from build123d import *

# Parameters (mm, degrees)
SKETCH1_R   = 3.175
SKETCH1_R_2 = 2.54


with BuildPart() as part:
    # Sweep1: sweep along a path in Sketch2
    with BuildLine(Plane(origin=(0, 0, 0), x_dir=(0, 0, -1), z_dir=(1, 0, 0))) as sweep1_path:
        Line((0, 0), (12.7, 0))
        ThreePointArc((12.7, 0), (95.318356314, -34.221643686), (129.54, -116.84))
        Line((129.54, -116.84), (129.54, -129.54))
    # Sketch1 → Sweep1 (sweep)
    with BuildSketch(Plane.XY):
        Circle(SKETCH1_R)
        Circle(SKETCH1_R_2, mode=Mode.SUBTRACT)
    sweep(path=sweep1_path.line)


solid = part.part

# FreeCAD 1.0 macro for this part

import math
import FreeCAD as App
import Part
import Sketcher
Q = App.Units.Quantity

doc = App.newDocument("Part")
body = doc.addObject("PartDesign::Body", "Body")

sketch1 = body.newObject("Sketcher::SketchObject", "Sketch")
sketch1.AttachmentSupport = (doc.getObject("XY_Plane"), [""])
sketch1.MapMode = "FlatFace"
sketch1.addGeometry(Part.Circle(App.Vector(0, 0, 0), App.Vector(0, 0, 1), 3.2), False)
sketch1.addGeometry(Part.Circle(App.Vector(0, 0, 0), App.Vector(0, 0, 1), 2.5), False)
sketch1.addConstraint(Sketcher.Constraint("Coincident", 0, 3, -1, 1))
sketch1.addConstraint(Sketcher.Constraint("Coincident", 1, 3, -1, 1))
sketch1.addConstraint(Sketcher.Constraint("Diameter", 1, Q("0.2 in")))
sketch1.addConstraint(Sketcher.Constraint("Diameter", 0, Q("0.25 in")))

sketch2 = body.newObject("Sketcher::SketchObject", "Sketch001")
sketch2.AttachmentSupport = (doc.getObject("YZ_Plane"), [""])
sketch2.MapMode = "FlatFace"
sketch2.addGeometry(Part.LineSegment(App.Vector(0, 0, 0), App.Vector(0, -13, 0)), False)
sketch2.addGeometry(Part.ArcOfCircle(Part.Circle(App.Vector(-117, -13, 0), App.Vector(0, 0, 1), 117), math.radians(-90), math.radians(0)), False)
sketch2.addGeometry(Part.LineSegment(App.Vector(-117, -130, 0), App.Vector(-130, -130, 0)), False)
sketch2.addConstraint(Sketcher.Constraint("Tangent", 0, 2, 1, 2))
sketch2.addConstraint(Sketcher.Constraint("Tangent", 1, 1, 2, 1))
sketch2.addConstraint(Sketcher.Constraint("Vertical", 0))
sketch2.addConstraint(Sketcher.Constraint("Horizontal", 2))
sketch2.addConstraint(Sketcher.Constraint("Coincident", 0, 1, -1, 1))
sketch2.addConstraint(Sketcher.Constraint("Equal", 2, 0))
sketch2.addConstraint(Sketcher.Constraint("Radius", 1, Q("4.6 in")))
sketch2.addConstraint(Sketcher.Constraint("DistanceX", 2, 2, 2, 1, Q("0.5 in")))
doc.recompute()

additivepipe = body.newObject("PartDesign::AdditivePipe", "AdditivePipe")
additivepipe.Profile = sketch1
additivepipe.Spine = (sketch2, ["Edge1", "Edge2", "Edge3"])

doc.recompute()
